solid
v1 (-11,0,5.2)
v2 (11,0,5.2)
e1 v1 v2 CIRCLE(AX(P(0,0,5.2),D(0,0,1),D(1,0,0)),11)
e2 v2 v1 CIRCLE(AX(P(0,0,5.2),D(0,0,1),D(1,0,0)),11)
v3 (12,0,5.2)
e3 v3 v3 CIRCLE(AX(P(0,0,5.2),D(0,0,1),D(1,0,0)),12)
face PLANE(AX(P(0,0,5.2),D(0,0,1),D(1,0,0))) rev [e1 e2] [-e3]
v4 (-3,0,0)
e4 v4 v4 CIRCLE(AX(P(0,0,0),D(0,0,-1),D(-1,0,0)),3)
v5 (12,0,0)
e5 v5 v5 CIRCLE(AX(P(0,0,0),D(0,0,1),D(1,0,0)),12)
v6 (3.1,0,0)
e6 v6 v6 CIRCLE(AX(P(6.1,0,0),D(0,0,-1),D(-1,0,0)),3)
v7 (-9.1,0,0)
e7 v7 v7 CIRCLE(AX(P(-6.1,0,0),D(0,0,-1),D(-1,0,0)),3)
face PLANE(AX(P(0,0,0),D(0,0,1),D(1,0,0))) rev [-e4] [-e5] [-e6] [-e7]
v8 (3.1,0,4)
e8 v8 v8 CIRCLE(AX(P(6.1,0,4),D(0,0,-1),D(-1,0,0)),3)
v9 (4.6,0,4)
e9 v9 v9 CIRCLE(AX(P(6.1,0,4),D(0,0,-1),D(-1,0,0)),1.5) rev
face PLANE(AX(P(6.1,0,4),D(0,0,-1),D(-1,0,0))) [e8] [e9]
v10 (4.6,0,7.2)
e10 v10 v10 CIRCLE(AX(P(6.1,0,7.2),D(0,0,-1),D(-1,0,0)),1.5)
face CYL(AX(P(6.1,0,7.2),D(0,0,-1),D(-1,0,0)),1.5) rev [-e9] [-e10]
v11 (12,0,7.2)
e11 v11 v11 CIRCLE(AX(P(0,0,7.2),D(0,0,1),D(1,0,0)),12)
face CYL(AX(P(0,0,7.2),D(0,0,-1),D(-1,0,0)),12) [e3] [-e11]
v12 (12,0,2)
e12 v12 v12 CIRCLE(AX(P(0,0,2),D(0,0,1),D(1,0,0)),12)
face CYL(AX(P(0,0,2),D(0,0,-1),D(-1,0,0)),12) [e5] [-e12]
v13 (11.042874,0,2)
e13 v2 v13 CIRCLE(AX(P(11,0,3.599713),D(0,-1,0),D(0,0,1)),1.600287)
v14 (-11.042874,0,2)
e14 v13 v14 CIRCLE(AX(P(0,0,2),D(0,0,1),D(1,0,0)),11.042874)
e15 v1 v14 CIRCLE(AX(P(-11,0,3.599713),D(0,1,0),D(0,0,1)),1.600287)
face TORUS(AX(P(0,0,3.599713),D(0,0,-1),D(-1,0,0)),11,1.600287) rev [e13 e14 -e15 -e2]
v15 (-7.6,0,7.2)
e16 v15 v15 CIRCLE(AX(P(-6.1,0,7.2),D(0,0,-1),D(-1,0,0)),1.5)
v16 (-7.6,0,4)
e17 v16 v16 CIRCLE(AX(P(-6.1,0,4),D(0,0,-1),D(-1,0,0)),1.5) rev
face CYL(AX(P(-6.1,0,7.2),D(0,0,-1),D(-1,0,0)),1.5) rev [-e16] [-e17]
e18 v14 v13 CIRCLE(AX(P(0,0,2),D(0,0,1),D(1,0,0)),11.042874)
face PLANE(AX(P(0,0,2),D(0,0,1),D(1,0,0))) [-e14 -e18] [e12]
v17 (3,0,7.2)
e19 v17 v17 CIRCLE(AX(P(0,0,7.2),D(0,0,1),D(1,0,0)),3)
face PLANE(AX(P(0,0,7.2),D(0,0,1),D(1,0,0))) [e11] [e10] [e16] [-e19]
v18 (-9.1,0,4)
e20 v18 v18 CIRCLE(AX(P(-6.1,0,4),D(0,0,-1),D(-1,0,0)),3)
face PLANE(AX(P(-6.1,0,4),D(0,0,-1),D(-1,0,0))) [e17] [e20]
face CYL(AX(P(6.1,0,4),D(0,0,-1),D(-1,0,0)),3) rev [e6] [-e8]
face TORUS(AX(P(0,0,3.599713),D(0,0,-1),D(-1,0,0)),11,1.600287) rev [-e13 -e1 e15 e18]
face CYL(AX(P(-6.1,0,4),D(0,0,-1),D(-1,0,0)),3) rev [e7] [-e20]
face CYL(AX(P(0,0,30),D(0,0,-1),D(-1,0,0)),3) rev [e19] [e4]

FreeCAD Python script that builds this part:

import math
import FreeCAD as App
import Part
import Sketcher
Q = App.Units.Quantity

doc = App.newDocument("Part")
body = doc.addObject("PartDesign::Body", "Body")

# Sketch on XY plane
sketch1 = body.newObject("Sketcher::SketchObject", "Sketch")
sketch1.AttachmentSupport = (doc.getObject("XY_Plane"), [""])
sketch1.MapMode = "FlatFace"
sketch1.addGeometry(Part.Circle(App.Vector(0, 0, 0), App.Vector(0, 0, 1), 12), False)
sketch1.addConstraint([
    Sketcher.Constraint("Coincident", 0, 3, -1, 1),
    Sketcher.Constraint("Diameter", 0, Q("24 mm")),
])
pad1 = body.newObject("PartDesign::Pad", "Pad")
pad1.Profile = sketch1
pad1.Length = 2

# Sketch on XY plane
sketch2 = body.newObject("Sketcher::SketchObject", "Sketch001")
sketch2.AttachmentSupport = (doc.getObject("XY_Plane"), [""])
sketch2.MapMode = "FlatFace"
sketch2.AttachmentOffset = App.Placement(App.Vector(0, 0, 2), App.Rotation())
sketch2.addGeometry(Part.Circle(App.Vector(0, 0, 0), App.Vector(0, 0, 1), 11), False)
sketch2.addConstraint([
    Sketcher.Constraint("Coincident", 0, 3, -1, 1),
    Sketcher.Constraint("Diameter", 0, Q("22 mm")),
])
pad2 = body.newObject("PartDesign::Pad", "Pad001")
pad2.Profile = sketch2
pad2.Length = 3.2

# Sketch on XY plane
sketch3 = body.newObject("Sketcher::SketchObject", "Sketch002")
sketch3.AttachmentSupport = (doc.getObject("XY_Plane"), [""])
sketch3.MapMode = "FlatFace"
sketch3.AttachmentOffset = App.Placement(App.Vector(0, 0, 5.2), App.Rotation())
sketch3.addGeometry(Part.Circle(App.Vector(0, 0, 0), App.Vector(0, 0, 1), 12), False)
sketch3.addConstraint([
    Sketcher.Constraint("Coincident", 0, 3, -1, 1),
    Sketcher.Constraint("Diameter", 0, Q("24 mm")),
])
pad3 = body.newObject("PartDesign::Pad", "Pad002")
pad3.Profile = sketch3
pad3.Length = 2

# Sketch on XY plane
sketch4 = body.newObject("Sketcher::SketchObject", "Sketch003")
sketch4.AttachmentSupport = (doc.getObject("XY_Plane"), [""])
sketch4.MapMode = "FlatFace"
sketch4.addGeometry(Part.Circle(App.Vector(0, 0, 0), App.Vector(0, 0, 1), 3), False)
sketch4.addConstraint([
    Sketcher.Constraint("Coincident", 0, 3, -1, 1),
    Sketcher.Constraint("Diameter", 0, Q("6 mm")),
])
pocket1 = body.newObject("PartDesign::Pocket", "Pocket")
pocket1.Profile = sketch4
pocket1.Length = 30
pocket1.Reversed = True

# Sketch on XY plane
sketch5 = body.newObject("Sketcher::SketchObject", "Sketch004")
sketch5.AttachmentSupport = (doc.getObject("XY_Plane"), [""])
sketch5.MapMode = "FlatFace"
sketch5.addGeometry([
    Part.Circle(App.Vector(6.1, 0, 0), App.Vector(0, 0, 1), 1.5),
    Part.Circle(App.Vector(-6.1, 0, 0), App.Vector(0, 0, 1), 1.5),
], False)
sketch5.addConstraint([
    Sketcher.Constraint("Equal", 0, 1),
    Sketcher.Constraint("Symmetric", 0, 3, 1, 3, -1, 1),
    Sketcher.Constraint("PointOnObject", 0, 3, -1),
    Sketcher.Constraint("Diameter", 0, Q("3 mm")),
    Sketcher.Constraint("DistanceX", -1, 1, 0, 3, Q("6.1 mm")),
])
pocket2 = body.newObject("PartDesign::Pocket", "Pocket001")
pocket2.Profile = sketch5
pocket2.Type = "ThroughAll"
pocket2.Reversed = True

# Sketch on XZ plane
sketch6 = body.newObject("Sketcher::SketchObject", "Sketch005")
sketch6.AttachmentSupport = (doc.getObject("XZ_Plane"), [""])
sketch6.MapMode = "FlatFace"
sketch6.addGeometry(Part.Circle(App.Vector(-11, 3.6, 0), App.Vector(0, 0, 1), 1.6), False)
sketch6.addConstraint([
    Sketcher.Constraint("DistanceX", 0, 3, -1, 1, Q("11 mm")),
    Sketcher.Constraint("Diameter", 0, Q("3.200574 mm")),
    Sketcher.Constraint("DistanceY", -1, 1, 0, 3, Q("3.599713 mm")),
])

# Sketch on XY plane
sketch7 = body.newObject("Sketcher::SketchObject", "Sketch006")
sketch7.AttachmentSupport = (doc.getObject("XY_Plane"), [""])
sketch7.MapMode = "FlatFace"
sketch7.AttachmentOffset = App.Placement(App.Vector(0, 0, 5.2), App.Rotation())
sketch7.addGeometry([
    Part.ArcOfCircle(Part.Circle(App.Vector(0, 0, 0), App.Vector(0, 0, 1), 11), math.radians(0), math.radians(90)),
    Part.ArcOfCircle(Part.Circle(App.Vector(0, 0, 0), App.Vector(0, 0, 1), 11), math.radians(90), math.radians(180)),
    Part.ArcOfCircle(Part.Circle(App.Vector(0, 0, 0), App.Vector(0, 0, 1), 11), math.radians(180), math.radians(270)),
    Part.ArcOfCircle(Part.Circle(App.Vector(0, 0, 0), App.Vector(0, 0, 1), 11), math.radians(-90), math.radians(0)),
], False)
sketch7.addConstraint([
    Sketcher.Constraint("Tangent", 0, 2, 1, 1),
    Sketcher.Constraint("Tangent", 1, 2, 2, 1),
    Sketcher.Constraint("Tangent", 2, 2, 3, 1),
    Sketcher.Constraint("Tangent", 3, 2, 0, 1),
    Sketcher.Constraint("Coincident", 0, 3, -1, 1),
    Sketcher.Constraint("Equal", 0, 1),
    Sketcher.Constraint("PointOnObject", 0, 2, -2),
    Sketcher.Constraint("PointOnObject", 1, 2, -1),
    Sketcher.Constraint("PointOnObject", 2, 2, -2),
    Sketcher.Constraint("PointOnObject", 3, 2, -1),
    Sketcher.Constraint("Radius", 0, Q("11 mm")),
])
doc.recompute()

subtractivepipe = body.newObject("PartDesign::SubtractivePipe", "SubtractivePipe")
subtractivepipe.Profile = sketch6
subtractivepipe.Spine = (sketch7, ["Edge1", "Edge2", "Edge3", "Edge4"])

# Sketch on XY plane
sketch8 = body.newObject("Sketcher::SketchObject", "Sketch007")
sketch8.AttachmentSupport = (doc.getObject("XY_Plane"), [""])
sketch8.MapMode = "FlatFace"
sketch8.addGeometry([
    Part.Circle(App.Vector(6.1, 0, 0), App.Vector(0, 0, 1), 3),
    Part.Circle(App.Vector(-6.1, 0, 0), App.Vector(0, 0, 1), 3),
], False)
sketch8.addConstraint([
    Sketcher.Constraint("Equal", 0, 1),
    Sketcher.Constraint("Symmetric", 0, 3, 1, 3, -1, 1),
    Sketcher.Constraint("PointOnObject", 0, 3, -1),
    Sketcher.Constraint("Diameter", 0, Q("6 mm")),
    Sketcher.Constraint("DistanceX", -1, 1, 0, 3, Q("6.1 mm")),
])
pocket3 = body.newObject("PartDesign::Pocket", "Pocket002")
pocket3.Profile = sketch8
pocket3.Length = 4
pocket3.Reversed = True

doc.recompute()
